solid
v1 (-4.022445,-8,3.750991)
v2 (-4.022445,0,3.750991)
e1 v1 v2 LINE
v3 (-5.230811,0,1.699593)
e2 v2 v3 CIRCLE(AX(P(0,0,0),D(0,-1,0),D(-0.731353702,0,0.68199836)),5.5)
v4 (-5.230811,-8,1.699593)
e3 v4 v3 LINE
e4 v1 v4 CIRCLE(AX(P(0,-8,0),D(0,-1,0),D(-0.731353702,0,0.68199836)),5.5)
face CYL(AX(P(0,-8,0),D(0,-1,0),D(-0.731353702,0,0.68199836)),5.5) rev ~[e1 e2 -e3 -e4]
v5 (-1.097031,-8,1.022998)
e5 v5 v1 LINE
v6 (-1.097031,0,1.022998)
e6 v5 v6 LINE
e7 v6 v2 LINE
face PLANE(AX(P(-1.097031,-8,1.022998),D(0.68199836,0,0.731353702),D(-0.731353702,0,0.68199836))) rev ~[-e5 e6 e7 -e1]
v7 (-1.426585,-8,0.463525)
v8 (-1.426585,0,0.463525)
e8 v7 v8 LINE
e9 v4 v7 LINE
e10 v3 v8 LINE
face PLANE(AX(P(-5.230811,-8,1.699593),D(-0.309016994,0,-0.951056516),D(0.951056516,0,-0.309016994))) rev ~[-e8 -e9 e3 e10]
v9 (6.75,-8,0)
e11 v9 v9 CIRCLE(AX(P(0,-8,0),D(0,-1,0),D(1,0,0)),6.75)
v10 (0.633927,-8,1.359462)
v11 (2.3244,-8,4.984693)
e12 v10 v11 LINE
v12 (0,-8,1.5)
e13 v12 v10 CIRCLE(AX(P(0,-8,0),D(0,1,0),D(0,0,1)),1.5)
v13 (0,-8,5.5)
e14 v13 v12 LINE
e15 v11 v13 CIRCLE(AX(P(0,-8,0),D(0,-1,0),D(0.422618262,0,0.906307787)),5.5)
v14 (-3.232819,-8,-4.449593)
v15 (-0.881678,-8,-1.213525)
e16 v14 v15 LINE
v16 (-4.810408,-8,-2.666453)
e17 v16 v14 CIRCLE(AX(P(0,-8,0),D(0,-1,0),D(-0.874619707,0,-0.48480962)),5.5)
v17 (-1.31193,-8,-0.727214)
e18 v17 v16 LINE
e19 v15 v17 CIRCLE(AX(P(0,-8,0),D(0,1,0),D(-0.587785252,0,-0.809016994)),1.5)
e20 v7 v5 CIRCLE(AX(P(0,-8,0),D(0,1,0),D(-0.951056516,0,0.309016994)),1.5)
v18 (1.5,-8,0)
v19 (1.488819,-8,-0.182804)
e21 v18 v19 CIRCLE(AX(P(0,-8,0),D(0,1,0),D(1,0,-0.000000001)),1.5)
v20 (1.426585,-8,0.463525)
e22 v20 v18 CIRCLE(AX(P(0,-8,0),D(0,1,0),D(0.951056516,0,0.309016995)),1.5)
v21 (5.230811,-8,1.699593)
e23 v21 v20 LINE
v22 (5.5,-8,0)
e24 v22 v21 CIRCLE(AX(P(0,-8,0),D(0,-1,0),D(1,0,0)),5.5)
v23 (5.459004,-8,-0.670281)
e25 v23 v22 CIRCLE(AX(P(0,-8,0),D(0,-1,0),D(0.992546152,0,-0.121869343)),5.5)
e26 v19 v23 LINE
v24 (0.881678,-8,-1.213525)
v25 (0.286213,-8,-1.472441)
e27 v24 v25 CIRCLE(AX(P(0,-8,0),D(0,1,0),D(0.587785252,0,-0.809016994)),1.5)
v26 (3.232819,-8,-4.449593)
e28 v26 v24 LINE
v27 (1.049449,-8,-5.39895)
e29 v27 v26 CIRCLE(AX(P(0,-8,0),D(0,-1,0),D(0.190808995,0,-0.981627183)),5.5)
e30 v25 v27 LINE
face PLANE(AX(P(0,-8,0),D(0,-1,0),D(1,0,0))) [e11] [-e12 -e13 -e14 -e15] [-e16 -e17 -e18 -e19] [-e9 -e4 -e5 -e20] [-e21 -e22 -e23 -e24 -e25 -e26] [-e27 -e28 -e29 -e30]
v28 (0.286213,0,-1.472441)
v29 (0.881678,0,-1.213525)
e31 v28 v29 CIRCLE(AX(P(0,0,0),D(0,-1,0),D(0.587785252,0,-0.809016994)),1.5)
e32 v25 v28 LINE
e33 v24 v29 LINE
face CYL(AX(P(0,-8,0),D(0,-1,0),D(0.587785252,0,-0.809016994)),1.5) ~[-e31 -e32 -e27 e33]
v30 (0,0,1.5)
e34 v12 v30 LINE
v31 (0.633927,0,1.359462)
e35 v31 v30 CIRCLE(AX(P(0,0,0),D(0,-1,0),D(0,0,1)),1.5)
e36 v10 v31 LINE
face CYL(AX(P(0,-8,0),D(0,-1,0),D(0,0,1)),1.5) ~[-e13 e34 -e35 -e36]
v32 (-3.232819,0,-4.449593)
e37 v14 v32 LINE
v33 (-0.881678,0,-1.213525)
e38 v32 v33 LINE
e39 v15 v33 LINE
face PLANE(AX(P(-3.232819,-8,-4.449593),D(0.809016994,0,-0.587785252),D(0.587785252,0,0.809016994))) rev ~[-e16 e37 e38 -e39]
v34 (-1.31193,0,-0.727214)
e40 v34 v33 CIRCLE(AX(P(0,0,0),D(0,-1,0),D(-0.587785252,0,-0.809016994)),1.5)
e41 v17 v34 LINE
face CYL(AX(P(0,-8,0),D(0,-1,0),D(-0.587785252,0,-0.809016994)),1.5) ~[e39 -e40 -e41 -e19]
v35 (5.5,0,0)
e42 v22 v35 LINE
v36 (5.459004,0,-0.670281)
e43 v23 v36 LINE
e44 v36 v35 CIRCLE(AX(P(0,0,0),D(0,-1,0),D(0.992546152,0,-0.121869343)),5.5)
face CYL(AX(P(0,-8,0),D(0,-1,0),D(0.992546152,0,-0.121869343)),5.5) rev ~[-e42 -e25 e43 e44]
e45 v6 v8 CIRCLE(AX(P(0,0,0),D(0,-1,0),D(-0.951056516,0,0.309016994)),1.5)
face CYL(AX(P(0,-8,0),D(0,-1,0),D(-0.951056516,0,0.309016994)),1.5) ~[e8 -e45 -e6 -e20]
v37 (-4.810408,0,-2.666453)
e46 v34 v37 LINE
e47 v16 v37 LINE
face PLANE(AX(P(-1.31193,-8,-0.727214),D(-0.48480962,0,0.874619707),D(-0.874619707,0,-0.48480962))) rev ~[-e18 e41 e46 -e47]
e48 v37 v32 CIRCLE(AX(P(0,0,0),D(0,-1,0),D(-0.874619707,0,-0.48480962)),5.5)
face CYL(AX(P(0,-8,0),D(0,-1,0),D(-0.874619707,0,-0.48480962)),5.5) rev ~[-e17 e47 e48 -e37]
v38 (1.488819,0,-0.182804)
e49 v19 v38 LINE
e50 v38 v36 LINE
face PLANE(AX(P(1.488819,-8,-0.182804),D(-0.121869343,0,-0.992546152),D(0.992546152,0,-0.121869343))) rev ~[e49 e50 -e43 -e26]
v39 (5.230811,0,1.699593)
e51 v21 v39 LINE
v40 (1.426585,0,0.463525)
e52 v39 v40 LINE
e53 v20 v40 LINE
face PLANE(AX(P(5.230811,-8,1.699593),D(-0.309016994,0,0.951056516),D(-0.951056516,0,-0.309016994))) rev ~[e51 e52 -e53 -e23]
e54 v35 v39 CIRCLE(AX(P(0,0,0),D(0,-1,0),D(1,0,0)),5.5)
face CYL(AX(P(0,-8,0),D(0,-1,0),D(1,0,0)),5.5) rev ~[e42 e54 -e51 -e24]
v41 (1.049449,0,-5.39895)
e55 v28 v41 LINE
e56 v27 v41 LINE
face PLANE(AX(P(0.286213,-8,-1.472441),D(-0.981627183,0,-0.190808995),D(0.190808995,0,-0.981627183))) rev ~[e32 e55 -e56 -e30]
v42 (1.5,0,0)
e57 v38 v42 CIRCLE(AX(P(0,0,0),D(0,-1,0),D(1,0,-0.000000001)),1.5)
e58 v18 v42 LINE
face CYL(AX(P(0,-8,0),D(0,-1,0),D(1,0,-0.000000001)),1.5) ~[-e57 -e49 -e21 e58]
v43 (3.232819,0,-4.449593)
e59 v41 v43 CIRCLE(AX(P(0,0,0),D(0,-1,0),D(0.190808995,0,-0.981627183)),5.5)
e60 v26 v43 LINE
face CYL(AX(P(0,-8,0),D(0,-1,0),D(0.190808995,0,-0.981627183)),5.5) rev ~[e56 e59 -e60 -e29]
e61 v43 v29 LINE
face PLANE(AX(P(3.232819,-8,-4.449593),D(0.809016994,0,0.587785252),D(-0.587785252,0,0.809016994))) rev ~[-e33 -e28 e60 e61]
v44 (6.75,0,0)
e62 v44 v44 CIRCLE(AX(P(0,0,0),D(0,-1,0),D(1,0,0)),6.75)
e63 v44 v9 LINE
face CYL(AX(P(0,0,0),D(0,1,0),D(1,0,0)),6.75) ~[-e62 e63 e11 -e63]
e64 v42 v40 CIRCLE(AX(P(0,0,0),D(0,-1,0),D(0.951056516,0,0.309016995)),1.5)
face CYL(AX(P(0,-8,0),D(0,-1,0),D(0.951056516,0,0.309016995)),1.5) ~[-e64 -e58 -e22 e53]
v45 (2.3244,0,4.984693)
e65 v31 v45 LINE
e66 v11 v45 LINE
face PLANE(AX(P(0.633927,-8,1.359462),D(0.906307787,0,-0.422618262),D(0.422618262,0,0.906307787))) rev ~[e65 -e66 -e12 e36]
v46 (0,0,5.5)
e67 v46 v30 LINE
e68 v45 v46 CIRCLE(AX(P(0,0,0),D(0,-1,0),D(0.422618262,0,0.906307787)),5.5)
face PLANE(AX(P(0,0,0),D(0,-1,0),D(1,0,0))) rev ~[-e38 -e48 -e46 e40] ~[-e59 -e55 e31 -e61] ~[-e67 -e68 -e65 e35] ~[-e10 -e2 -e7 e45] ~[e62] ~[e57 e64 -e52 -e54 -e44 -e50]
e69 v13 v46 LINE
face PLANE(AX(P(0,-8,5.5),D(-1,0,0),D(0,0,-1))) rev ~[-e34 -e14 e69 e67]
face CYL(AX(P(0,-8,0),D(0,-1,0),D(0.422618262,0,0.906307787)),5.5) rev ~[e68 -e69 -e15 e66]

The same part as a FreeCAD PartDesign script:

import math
import FreeCAD as App
import Part
import Sketcher

V = App.Vector
Q = App.Units.Quantity

doc = App.newDocument("Part")
body = doc.addObject("PartDesign::Body", "Body")

sketch1 = body.newObject("Sketcher::SketchObject", "Sketch")
sketch1.AttachmentSupport = (doc.getObject("XZ_Plane"), [""])
sketch1.MapMode = "FlatFace"
sketch1.addGeometry(Part.Circle(V(0, 0, 0), V(0, 0, 1), 7), False)
sketch1.addConstraint([
    Sketcher.Constraint("Coincident", 0, 3, -1, 1),
    Sketcher.Constraint("Diameter", 0, Q("13.5 mm")),
])
pad1 = body.newObject("PartDesign::Pad", "Pad")
pad1.Profile = sketch1
pad1.Length = 8

sketch2 = body.newObject("Sketcher::SketchObject", "Sketch001")
sketch2.AttachmentSupport = (doc.getObject("XZ_Plane"), [""])
sketch2.MapMode = "FlatFace"
sketch2.AttachmentOffset = App.Placement(V(0, 0, 8), App.Rotation())
sketch2.addGeometry([
    Part.ArcOfCircle(Part.Circle(V(0, 0, 0), V(0, 0, 1), 1.5), math.radians(137), math.radians(162)),
    Part.LineSegment(V(-1.1, 1.02, 0), V(-4.02, 3.75, 0)),
    Part.ArcOfCircle(Part.Circle(V(0, 0, 0), V(0, 0, 1), 5.5), math.radians(137), math.radians(162)),
    Part.LineSegment(V(-5.23, 1.7, 0), V(-1.43, 0.46, 0)),
    Part.ArcOfCircle(Part.Circle(V(0, 0, 0), V(0, 0, 1), 1.5), math.radians(65), math.radians(90)),
    Part.LineSegment(V(0.63, 1.36, 0), V(2.32, 4.98, 0)),
    Part.ArcOfCircle(Part.Circle(V(0, 0, 0), V(0, 0, 1), 5.5), math.radians(65), math.radians(90)),
    Part.LineSegment(V(0, 5.5, 0), V(0, 1.5, 0)),
    Part.ArcOfCircle(Part.Circle(V(0, 0, 0), V(0, 0, 1), 1.5), math.radians(0), math.radians(18)),
    Part.ArcOfCircle(Part.Circle(V(0, 0, 0), V(0, 0, 1), 1.5), math.radians(-7), math.radians(0)),
    Part.LineSegment(V(1.49, -0.18, 0), V(5.46, -0.67, 0)),
    Part.ArcOfCircle(Part.Circle(V(0, 0, 0), V(0, 0, 1), 5.5), math.radians(-7), math.radians(0)),
    Part.ArcOfCircle(Part.Circle(V(0, 0, 0), V(0, 0, 1), 5.5), math.radians(0), math.radians(18)),
    Part.LineSegment(V(5.23, 1.7, 0), V(1.43, 0.46, 0)),
    Part.LineSegment(V(3.23, -4.45, 0), V(0.88, -1.21, 0)),
    Part.ArcOfCircle(Part.Circle(V(0, 0, 0), V(0, 0, 1), 1.5), math.radians(-79), math.radians(-54)),
    Part.LineSegment(V(0.29, -1.47, 0), V(1.05, -5.4, 0)),
    Part.ArcOfCircle(Part.Circle(V(0, 0, 0), V(0, 0, 1), 5.5), math.radians(-79), math.radians(-54)),
    Part.LineSegment(V(-3.23, -4.45, 0), V(-0.88, -1.21, 0)),
    Part.ArcOfCircle(Part.Circle(V(0, 0, 0), V(0, 0, 1), 1.5), math.radians(-151), math.radians(-126)),
    Part.LineSegment(V(-1.31, -0.73, 0), V(-4.81, -2.67, 0)),
    Part.ArcOfCircle(Part.Circle(V(0, 0, 0), V(0, 0, 1), 5.5), math.radians(-151), math.radians(-126)),
], False)
sketch2.addConstraint([
    Sketcher.Constraint("Coincident", 0, 1, 1, 1),
    Sketcher.Constraint("Coincident", 1, 2, 2, 1),
    Sketcher.Constraint("Coincident", 2, 2, 3, 1),
    Sketcher.Constraint("Coincident", 3, 2, 0, 2),
    Sketcher.Constraint("Coincident", 4, 1, 5, 1),
    Sketcher.Constraint("Coincident", 5, 2, 6, 1),
    Sketcher.Constraint("Coincident", 6, 2, 7, 1),
    Sketcher.Constraint("Coincident", 7, 2, 4, 2),
    Sketcher.Constraint("Tangent", 8, 1, 9, 2),
    Sketcher.Constraint("Coincident", 9, 1, 10, 1),
    Sketcher.Constraint("Coincident", 10, 2, 11, 1),
    Sketcher.Constraint("Tangent", 11, 2, 12, 1),
    Sketcher.Constraint("Coincident", 12, 2, 13, 1),
    Sketcher.Constraint("Coincident", 13, 2, 8, 2),
    Sketcher.Constraint("Coincident", 14, 2, 15, 2),
    Sketcher.Constraint("Coincident", 15, 1, 16, 1),
    Sketcher.Constraint("Coincident", 16, 2, 17, 1),
    Sketcher.Constraint("Coincident", 17, 2, 14, 1),
    Sketcher.Constraint("Coincident", 18, 2, 19, 2),
    Sketcher.Constraint("Coincident", 19, 1, 20, 1),
    Sketcher.Constraint("Coincident", 20, 2, 21, 1),
    Sketcher.Constraint("Coincident", 21, 2, 18, 1),
    Sketcher.Constraint("Vertical", 7),
    Sketcher.Constraint("Coincident", 0, 3, -1, 1),
    Sketcher.Constraint("Coincident", 2, 3, -1, 1),
    Sketcher.Constraint("Coincident", 4, 3, -1, 1),
    Sketcher.Constraint("Coincident", 6, 3, -1, 1),
    Sketcher.Constraint("Coincident", 8, 3, -1, 1),
    Sketcher.Constraint("Coincident", 11, 3, -1, 1),
    Sketcher.Constraint("Coincident", 15, 3, -1, 1),
    Sketcher.Constraint("Coincident", 17, 3, -1, 1),
    Sketcher.Constraint("Coincident", 19, 3, -1, 1),
    Sketcher.Constraint("Coincident", 21, 3, -1, 1),
    Sketcher.Constraint("Equal", 0, 4),
    Sketcher.Constraint("Equal", 2, 6),
    Sketcher.Constraint("Equal", 4, 8),
    Sketcher.Constraint("Equal", 8, 9),
    Sketcher.Constraint("Equal", 6, 11),
    Sketcher.Constraint("Equal", 11, 12),
    Sketcher.Constraint("Equal", 9, 15),
    Sketcher.Constraint("Equal", 12, 17),
    Sketcher.Constraint("Equal", 15, 19),
    Sketcher.Constraint("Equal", 17, 21),
    Sketcher.Constraint("PointOnObject", 6, 2, -2),
    Sketcher.Constraint("PointOnObject", 8, 1, -1),
    Sketcher.Constraint("PointOnObject", 11, 2, -1),
    Sketcher.Constraint("Horizontal", 2, 2, 12, 2),
    Sketcher.Constraint("Horizontal", 3, 2, 13, 2),
    Sketcher.Constraint("Horizontal", 14, 2, 18, 2),
    Sketcher.Constraint("Horizontal", 17, 2, 21, 2),
    Sketcher.Constraint("Radius", 0, Q("1.5 mm")),
    Sketcher.Constraint("Radius", 2, Q("5.5 mm")),
    Sketcher.Constraint("Angle", 1, Q("137 deg")),
    Sketcher.Constraint("Angle", 3, Q("-18 deg")),
    Sketcher.Constraint("Angle", 5, Q("65 deg")),
    Sketcher.Constraint("Angle", 10, Q("-7 deg")),
    Sketcher.Constraint("Angle", 14, Q("126 deg")),
    Sketcher.Constraint("Angle", 16, Q("-79 deg")),
    Sketcher.Constraint("Angle", 20, Q("-151 deg")),
    Sketcher.Constraint("DistanceX", 9, 1, 17, 2, Q("1.744 mm")),
    Sketcher.Constraint("DistanceX", -1, 1, 5, 2, Q("2.3244 mm")),
    Sketcher.Constraint("DistanceY", 12, 2, 5, 2, Q("3.285099 mm")),
    Sketcher.Constraint("DistanceX", 0, 1, -1, 1, Q("1.097031 mm")),
    Sketcher.Constraint("DistanceX", -1, 1, 9, 1, Q("1.488819 mm")),
    Sketcher.Constraint("DistanceY", 15, 1, -1, 1, Q("1.472441 mm")),
    Sketcher.Constraint("DistanceX", 19, 1, -1, 1, Q("1.31193 mm")),
])
pocket1 = body.newObject("PartDesign::Pocket", "Pocket")
pocket1.Profile = sketch2
pocket1.Type = "ThroughAll"

doc.recompute()
